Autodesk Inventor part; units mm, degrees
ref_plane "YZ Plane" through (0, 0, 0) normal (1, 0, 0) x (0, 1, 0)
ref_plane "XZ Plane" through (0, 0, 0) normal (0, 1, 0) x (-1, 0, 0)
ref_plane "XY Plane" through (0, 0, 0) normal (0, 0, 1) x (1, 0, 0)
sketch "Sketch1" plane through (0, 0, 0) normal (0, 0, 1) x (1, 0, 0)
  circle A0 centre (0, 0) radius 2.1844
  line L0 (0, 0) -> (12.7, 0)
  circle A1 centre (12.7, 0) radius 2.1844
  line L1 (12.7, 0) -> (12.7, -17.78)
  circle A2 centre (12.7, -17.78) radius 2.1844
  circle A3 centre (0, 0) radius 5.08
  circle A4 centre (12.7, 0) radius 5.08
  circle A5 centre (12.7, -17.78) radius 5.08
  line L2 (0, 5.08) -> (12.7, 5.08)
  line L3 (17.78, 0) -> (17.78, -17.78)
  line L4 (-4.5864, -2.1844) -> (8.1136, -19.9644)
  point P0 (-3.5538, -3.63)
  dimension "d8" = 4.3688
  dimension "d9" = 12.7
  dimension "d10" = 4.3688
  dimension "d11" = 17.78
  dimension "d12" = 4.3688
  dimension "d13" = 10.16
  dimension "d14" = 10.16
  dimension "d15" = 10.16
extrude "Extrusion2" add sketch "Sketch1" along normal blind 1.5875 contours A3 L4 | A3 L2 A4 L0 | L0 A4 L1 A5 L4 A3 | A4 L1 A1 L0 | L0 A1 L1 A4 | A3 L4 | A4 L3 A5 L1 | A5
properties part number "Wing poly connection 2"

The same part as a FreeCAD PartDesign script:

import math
import FreeCAD as App
import Part
import Sketcher
from FreeCAD import Vector
Q = App.Units.Quantity

doc = App.newDocument("Part")
body = doc.addObject("PartDesign::Body", "Body")

sketch1 = body.newObject("Sketcher::SketchObject", "Sketch")
sketch1.AttachmentSupport = (doc.getObject("XY_Plane"), [""])
sketch1.MapMode = "FlatFace"
sketch1.addGeometry([
    Part.ArcOfCircle(Part.Circle(Vector(0, 0, 0), Vector(0, 0, 1), 5.1), math.radians(90), math.radians(226)),
    Part.LineSegment(Vector(-3.6, -3.6, 0), Vector(8.1, -20, 0)),
    Part.ArcOfCircle(Part.Circle(Vector(12.7, -17.8, 0), Vector(0, 0, 1), 5.1), math.radians(-155), math.radians(0)),
    Part.LineSegment(Vector(17.8, -17.8, 0), Vector(17.8, 0, 0)),
    Part.ArcOfCircle(Part.Circle(Vector(12.7, 0, 0), Vector(0, 0, 1), 5.1), math.radians(0), math.radians(90)),
    Part.LineSegment(Vector(12.7, 5.1, 0), Vector(0, 5.1, 0)),
    Part.Circle(Vector(0, 0, 0), Vector(0, 0, 1), 2.2),
    Part.Circle(Vector(12.7, 0, 0), Vector(0, 0, 1), 2.2),
    Part.Circle(Vector(12.7, -17.8, 0), Vector(0, 0, 1), 2.2),
], False)
sketch1.addConstraint([
    Sketcher.Constraint("Coincident", 0, 2, 1, 1),
    Sketcher.Constraint("Coincident", 1, 2, 2, 1),
    Sketcher.Constraint("Tangent", 2, 2, 3, 1),
    Sketcher.Constraint("Tangent", 3, 2, 4, 1),
    Sketcher.Constraint("Tangent", 4, 2, 5, 1),
    Sketcher.Constraint("Tangent", 5, 2, 0, 1),
    Sketcher.Constraint("Vertical", 3),
    Sketcher.Constraint("Horizontal", 5),
    Sketcher.Constraint("Coincident", 0, 3, -1, 1),
    Sketcher.Constraint("Coincident", 6, 3, -1, 1),
    Sketcher.Constraint("Coincident", 7, 3, 4, 3),
    Sketcher.Constraint("Coincident", 8, 3, 2, 3),
    Sketcher.Constraint("Equal", 0, 2),
    Sketcher.Constraint("Equal", 2, 4),
    Sketcher.Constraint("Equal", 6, 7),
    Sketcher.Constraint("Equal", 7, 8),
    Sketcher.Constraint("Radius", 0, Q("0.2 in")),
    Sketcher.Constraint("Diameter", 6, Q("0.172 in")),
    Sketcher.Constraint("DistanceX", 5, 2, 5, 1, Q("0.5 in")),
    Sketcher.Constraint("DistanceY", 3, 1, 3, 2, Q("0.7 in")),
    Sketcher.Constraint("DistanceY", 1, 2, -1, 1, Q("0.786 in")),
    Sketcher.Constraint("Distance", 1, Q("0.7903 in")),
])
pad1 = body.newObject("PartDesign::Pad", "Pad")
pad1.Profile = sketch1
pad1.Length = Q("0.0625 in")

doc.recompute()
